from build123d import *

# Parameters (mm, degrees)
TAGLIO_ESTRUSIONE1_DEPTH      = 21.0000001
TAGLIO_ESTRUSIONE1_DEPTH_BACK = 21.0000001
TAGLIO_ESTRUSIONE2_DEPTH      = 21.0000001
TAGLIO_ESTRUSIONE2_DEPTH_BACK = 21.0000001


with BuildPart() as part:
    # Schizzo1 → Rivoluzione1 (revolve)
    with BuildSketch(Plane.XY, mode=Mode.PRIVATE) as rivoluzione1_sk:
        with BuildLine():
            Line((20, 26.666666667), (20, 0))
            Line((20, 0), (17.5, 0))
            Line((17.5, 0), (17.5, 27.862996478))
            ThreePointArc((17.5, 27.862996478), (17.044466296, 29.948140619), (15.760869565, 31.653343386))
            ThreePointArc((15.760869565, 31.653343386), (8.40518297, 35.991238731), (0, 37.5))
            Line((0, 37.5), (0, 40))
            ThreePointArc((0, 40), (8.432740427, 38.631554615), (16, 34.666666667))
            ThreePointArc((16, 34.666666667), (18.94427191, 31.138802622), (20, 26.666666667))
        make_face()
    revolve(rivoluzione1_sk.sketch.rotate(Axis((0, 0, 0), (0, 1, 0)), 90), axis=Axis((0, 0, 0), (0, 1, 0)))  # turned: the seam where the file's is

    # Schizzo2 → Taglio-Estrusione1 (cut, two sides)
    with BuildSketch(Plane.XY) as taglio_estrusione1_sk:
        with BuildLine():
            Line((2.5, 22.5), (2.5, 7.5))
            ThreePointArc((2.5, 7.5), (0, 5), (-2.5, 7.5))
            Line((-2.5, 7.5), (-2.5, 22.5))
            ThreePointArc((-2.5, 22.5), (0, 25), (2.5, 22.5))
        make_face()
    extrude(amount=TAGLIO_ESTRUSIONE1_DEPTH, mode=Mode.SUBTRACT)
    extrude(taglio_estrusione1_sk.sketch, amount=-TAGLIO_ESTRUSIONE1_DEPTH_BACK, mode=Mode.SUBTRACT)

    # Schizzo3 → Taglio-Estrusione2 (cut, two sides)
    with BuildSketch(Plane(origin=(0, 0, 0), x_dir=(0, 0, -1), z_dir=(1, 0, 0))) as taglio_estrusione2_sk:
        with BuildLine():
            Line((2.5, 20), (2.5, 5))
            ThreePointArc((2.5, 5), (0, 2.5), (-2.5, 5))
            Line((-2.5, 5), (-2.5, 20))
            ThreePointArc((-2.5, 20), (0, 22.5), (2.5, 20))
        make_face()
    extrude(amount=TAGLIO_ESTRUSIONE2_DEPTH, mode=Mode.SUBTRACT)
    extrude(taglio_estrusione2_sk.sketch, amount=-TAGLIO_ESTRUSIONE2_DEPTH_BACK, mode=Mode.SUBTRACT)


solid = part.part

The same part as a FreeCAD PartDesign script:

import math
import FreeCAD as App
import Part
import Sketcher
from FreeCAD import Vector

doc = App.newDocument("Part")
body = doc.addObject("PartDesign::Body", "Body")

# Sketch on XY plane
sketch1 = body.newObject("Sketcher::SketchObject", "Sketch")
sketch1.AttachmentSupport = (doc.getObject("XY_Plane"), [""])
sketch1.MapMode = "FlatFace"
sketch1.addGeometry(Part.LineSegment(Vector(20, 0, 0), Vector(20, 26.7, 0)), False)
sketch1.addGeometry(Part.ArcOfCircle(Part.Circle(Vector(10, 26.7, 0), Vector(0, 0, 1), 10), math.radians(0), math.radians(53)), False)
sketch1.addGeometry(Part.ArcOfCircle(Part.Circle(Vector(0, 13.3, 0), Vector(0, 0, 1), 26.7), math.radians(53), math.radians(90)), False)
sketch1.addGeometry(Part.LineSegment(Vector(0, 40, 0), Vector(0, 37.5, 0)), False)
sketch1.addGeometry(Part.ArcOfCircle(Part.Circle(Vector(0, 13.3, 0), Vector(0, 0, 1), 24.2), math.radians(49), math.radians(90)), False)
sketch1.addGeometry(Part.ArcOfCircle(Part.Circle(Vector(12.5, 27.9, 0), Vector(0, 0, 1), 5), math.radians(0), math.radians(49)), False)
sketch1.addGeometry(Part.LineSegment(Vector(17.5, 27.9, 0), Vector(17.5, 0, 0)), False)
sketch1.addGeometry(Part.LineSegment(Vector(17.5, 0, 0), Vector(20, 0, 0)), False)
sketch1.addConstraint(Sketcher.Constraint("Tangent", 0, 2, 1, 1))
sketch1.addConstraint(Sketcher.Constraint("Tangent", 1, 2, 2, 1))
sketch1.addConstraint(Sketcher.Constraint("Coincident", 2, 2, 3, 1))
sketch1.addConstraint(Sketcher.Constraint("Coincident", 3, 2, 4, 2))
sketch1.addConstraint(Sketcher.Constraint("Tangent", 4, 1, 5, 2))
sketch1.addConstraint(Sketcher.Constraint("Tangent", 5, 1, 6, 1))
sketch1.addConstraint(Sketcher.Constraint("Coincident", 6, 2, 7, 1))
sketch1.addConstraint(Sketcher.Constraint("Coincident", 7, 2, 0, 1))
sketch1.addConstraint(Sketcher.Constraint("Vertical", 0))
sketch1.addConstraint(Sketcher.Constraint("Vertical", 3))
sketch1.addConstraint(Sketcher.Constraint("Vertical", 6))
sketch1.addConstraint(Sketcher.Constraint("Horizontal", 7))
sketch1.addConstraint(Sketcher.Constraint("Coincident", 4, 3, 2, 3))
sketch1.addConstraint(Sketcher.Constraint("PointOnObject", 2, 3, -2))
sketch1.addConstraint(Sketcher.Constraint("PointOnObject", 2, 2, -2))
sketch1.addConstraint(Sketcher.Constraint("PointOnObject", 6, 2, -1))
sketch1.addConstraint(Sketcher.Constraint("Equal", 7, 3))
sketch1.addConstraint(Sketcher.Constraint("Radius", 1, 10.0))
sketch1.addConstraint(Sketcher.Constraint("Radius", 5, 5.0))
sketch1.addConstraint(Sketcher.Constraint("DistanceX", 7, 1, 7, 2, 2.5))
sketch1.addConstraint(Sketcher.Constraint("DistanceX", -1, 1, 1, 3, 10.0))
sketch1.addConstraint(Sketcher.Constraint("DistanceX", -1, 1, 1, 2, 16.0))
sketch1.addConstraint(Sketcher.Constraint("DistanceY", -1, 1, 2, 2, 40.0))
revolution = body.newObject("PartDesign::Revolution", "Revolution")
revolution.Profile = sketch1
revolution.ReferenceAxis = (sketch1, ["V_Axis"])
revolution.Angle = 360

# Sketch on XY plane
sketch2 = body.newObject("Sketcher::SketchObject", "Sketch001")
sketch2.AttachmentSupport = (doc.getObject("XY_Plane"), [""])
sketch2.MapMode = "FlatFace"
sketch2.addGeometry(Part.LineSegment(Vector(2.5, 7.5, 0), Vector(2.5, 22.5, 0)), False)
sketch2.addGeometry(Part.ArcOfCircle(Part.Circle(Vector(0, 22.5, 0), Vector(0, 0, 1), 2.5), math.radians(0), math.radians(180)), False)
sketch2.addGeometry(Part.LineSegment(Vector(-2.5, 22.5, 0), Vector(-2.5, 7.5, 0)), False)
sketch2.addGeometry(Part.ArcOfCircle(Part.Circle(Vector(0, 7.5, 0), Vector(0, 0, 1), 2.5), math.radians(180), math.radians(360)), False)
sketch2.addConstraint(Sketcher.Constraint("Tangent", 0, 2, 1, 1))
sketch2.addConstraint(Sketcher.Constraint("Tangent", 1, 2, 2, 1))
sketch2.addConstraint(Sketcher.Constraint("Tangent", 2, 2, 3, 1))
sketch2.addConstraint(Sketcher.Constraint("Tangent", 3, 2, 0, 1))
sketch2.addConstraint(Sketcher.Constraint("Vertical", 0))
sketch2.addConstraint(Sketcher.Constraint("Vertical", 2))
sketch2.addConstraint(Sketcher.Constraint("PointOnObject", 1, 3, -2))
sketch2.addConstraint(Sketcher.Constraint("Radius", 1, 2.5))
sketch2.addConstraint(Sketcher.Constraint("DistanceY", 0, 1, 0, 2, 15.0))
sketch2.addConstraint(Sketcher.Constraint("DistanceY", -1, 1, 1, 3, 22.5))
pocket1 = body.newObject("PartDesign::Pocket", "Pocket")
pocket1.Profile = sketch2
pocket1.Type = "ThroughAll"
pocket1.Midplane = True

# Sketch on YZ plane
sketch3 = body.newObject("Sketcher::SketchObject", "Sketch002")
sketch3.AttachmentSupport = (doc.getObject("YZ_Plane"), [""])
sketch3.MapMode = "FlatFace"
sketch3.addGeometry(Part.LineSegment(Vector(5, -2.5, 0), Vector(20, -2.5, 0)), False)
sketch3.addGeometry(Part.ArcOfCircle(Part.Circle(Vector(20, 0, 0), Vector(0, 0, 1), 2.5), math.radians(-90), math.radians(90)), False)
sketch3.addGeometry(Part.LineSegment(Vector(20, 2.5, 0), Vector(5, 2.5, 0)), False)
sketch3.addGeometry(Part.ArcOfCircle(Part.Circle(Vector(5, 0, 0), Vector(0, 0, 1), 2.5), math.radians(90), math.radians(270)), False)
sketch3.addConstraint(Sketcher.Constraint("Tangent", 0, 2, 1, 1))
sketch3.addConstraint(Sketcher.Constraint("Tangent", 1, 2, 2, 1))
sketch3.addConstraint(Sketcher.Constraint("Tangent", 2, 2, 3, 1))
sketch3.addConstraint(Sketcher.Constraint("Tangent", 3, 2, 0, 1))
sketch3.addConstraint(Sketcher.Constraint("Horizontal", 0))
sketch3.addConstraint(Sketcher.Constraint("Horizontal", 2))
sketch3.addConstraint(Sketcher.Constraint("PointOnObject", 1, 3, -1))
sketch3.addConstraint(Sketcher.Constraint("Radius", 1, 2.5))
sketch3.addConstraint(Sketcher.Constraint("DistanceX", 0, 1, 0, 2, 15.0))
sketch3.addConstraint(Sketcher.Constraint("DistanceX", -1, 1, 1, 3, 20.0))
pocket2 = body.newObject("PartDesign::Pocket", "Pocket001")
pocket2.Profile = sketch3
pocket2.Type = "ThroughAll"
pocket2.Midplane = True

doc.recompute()
